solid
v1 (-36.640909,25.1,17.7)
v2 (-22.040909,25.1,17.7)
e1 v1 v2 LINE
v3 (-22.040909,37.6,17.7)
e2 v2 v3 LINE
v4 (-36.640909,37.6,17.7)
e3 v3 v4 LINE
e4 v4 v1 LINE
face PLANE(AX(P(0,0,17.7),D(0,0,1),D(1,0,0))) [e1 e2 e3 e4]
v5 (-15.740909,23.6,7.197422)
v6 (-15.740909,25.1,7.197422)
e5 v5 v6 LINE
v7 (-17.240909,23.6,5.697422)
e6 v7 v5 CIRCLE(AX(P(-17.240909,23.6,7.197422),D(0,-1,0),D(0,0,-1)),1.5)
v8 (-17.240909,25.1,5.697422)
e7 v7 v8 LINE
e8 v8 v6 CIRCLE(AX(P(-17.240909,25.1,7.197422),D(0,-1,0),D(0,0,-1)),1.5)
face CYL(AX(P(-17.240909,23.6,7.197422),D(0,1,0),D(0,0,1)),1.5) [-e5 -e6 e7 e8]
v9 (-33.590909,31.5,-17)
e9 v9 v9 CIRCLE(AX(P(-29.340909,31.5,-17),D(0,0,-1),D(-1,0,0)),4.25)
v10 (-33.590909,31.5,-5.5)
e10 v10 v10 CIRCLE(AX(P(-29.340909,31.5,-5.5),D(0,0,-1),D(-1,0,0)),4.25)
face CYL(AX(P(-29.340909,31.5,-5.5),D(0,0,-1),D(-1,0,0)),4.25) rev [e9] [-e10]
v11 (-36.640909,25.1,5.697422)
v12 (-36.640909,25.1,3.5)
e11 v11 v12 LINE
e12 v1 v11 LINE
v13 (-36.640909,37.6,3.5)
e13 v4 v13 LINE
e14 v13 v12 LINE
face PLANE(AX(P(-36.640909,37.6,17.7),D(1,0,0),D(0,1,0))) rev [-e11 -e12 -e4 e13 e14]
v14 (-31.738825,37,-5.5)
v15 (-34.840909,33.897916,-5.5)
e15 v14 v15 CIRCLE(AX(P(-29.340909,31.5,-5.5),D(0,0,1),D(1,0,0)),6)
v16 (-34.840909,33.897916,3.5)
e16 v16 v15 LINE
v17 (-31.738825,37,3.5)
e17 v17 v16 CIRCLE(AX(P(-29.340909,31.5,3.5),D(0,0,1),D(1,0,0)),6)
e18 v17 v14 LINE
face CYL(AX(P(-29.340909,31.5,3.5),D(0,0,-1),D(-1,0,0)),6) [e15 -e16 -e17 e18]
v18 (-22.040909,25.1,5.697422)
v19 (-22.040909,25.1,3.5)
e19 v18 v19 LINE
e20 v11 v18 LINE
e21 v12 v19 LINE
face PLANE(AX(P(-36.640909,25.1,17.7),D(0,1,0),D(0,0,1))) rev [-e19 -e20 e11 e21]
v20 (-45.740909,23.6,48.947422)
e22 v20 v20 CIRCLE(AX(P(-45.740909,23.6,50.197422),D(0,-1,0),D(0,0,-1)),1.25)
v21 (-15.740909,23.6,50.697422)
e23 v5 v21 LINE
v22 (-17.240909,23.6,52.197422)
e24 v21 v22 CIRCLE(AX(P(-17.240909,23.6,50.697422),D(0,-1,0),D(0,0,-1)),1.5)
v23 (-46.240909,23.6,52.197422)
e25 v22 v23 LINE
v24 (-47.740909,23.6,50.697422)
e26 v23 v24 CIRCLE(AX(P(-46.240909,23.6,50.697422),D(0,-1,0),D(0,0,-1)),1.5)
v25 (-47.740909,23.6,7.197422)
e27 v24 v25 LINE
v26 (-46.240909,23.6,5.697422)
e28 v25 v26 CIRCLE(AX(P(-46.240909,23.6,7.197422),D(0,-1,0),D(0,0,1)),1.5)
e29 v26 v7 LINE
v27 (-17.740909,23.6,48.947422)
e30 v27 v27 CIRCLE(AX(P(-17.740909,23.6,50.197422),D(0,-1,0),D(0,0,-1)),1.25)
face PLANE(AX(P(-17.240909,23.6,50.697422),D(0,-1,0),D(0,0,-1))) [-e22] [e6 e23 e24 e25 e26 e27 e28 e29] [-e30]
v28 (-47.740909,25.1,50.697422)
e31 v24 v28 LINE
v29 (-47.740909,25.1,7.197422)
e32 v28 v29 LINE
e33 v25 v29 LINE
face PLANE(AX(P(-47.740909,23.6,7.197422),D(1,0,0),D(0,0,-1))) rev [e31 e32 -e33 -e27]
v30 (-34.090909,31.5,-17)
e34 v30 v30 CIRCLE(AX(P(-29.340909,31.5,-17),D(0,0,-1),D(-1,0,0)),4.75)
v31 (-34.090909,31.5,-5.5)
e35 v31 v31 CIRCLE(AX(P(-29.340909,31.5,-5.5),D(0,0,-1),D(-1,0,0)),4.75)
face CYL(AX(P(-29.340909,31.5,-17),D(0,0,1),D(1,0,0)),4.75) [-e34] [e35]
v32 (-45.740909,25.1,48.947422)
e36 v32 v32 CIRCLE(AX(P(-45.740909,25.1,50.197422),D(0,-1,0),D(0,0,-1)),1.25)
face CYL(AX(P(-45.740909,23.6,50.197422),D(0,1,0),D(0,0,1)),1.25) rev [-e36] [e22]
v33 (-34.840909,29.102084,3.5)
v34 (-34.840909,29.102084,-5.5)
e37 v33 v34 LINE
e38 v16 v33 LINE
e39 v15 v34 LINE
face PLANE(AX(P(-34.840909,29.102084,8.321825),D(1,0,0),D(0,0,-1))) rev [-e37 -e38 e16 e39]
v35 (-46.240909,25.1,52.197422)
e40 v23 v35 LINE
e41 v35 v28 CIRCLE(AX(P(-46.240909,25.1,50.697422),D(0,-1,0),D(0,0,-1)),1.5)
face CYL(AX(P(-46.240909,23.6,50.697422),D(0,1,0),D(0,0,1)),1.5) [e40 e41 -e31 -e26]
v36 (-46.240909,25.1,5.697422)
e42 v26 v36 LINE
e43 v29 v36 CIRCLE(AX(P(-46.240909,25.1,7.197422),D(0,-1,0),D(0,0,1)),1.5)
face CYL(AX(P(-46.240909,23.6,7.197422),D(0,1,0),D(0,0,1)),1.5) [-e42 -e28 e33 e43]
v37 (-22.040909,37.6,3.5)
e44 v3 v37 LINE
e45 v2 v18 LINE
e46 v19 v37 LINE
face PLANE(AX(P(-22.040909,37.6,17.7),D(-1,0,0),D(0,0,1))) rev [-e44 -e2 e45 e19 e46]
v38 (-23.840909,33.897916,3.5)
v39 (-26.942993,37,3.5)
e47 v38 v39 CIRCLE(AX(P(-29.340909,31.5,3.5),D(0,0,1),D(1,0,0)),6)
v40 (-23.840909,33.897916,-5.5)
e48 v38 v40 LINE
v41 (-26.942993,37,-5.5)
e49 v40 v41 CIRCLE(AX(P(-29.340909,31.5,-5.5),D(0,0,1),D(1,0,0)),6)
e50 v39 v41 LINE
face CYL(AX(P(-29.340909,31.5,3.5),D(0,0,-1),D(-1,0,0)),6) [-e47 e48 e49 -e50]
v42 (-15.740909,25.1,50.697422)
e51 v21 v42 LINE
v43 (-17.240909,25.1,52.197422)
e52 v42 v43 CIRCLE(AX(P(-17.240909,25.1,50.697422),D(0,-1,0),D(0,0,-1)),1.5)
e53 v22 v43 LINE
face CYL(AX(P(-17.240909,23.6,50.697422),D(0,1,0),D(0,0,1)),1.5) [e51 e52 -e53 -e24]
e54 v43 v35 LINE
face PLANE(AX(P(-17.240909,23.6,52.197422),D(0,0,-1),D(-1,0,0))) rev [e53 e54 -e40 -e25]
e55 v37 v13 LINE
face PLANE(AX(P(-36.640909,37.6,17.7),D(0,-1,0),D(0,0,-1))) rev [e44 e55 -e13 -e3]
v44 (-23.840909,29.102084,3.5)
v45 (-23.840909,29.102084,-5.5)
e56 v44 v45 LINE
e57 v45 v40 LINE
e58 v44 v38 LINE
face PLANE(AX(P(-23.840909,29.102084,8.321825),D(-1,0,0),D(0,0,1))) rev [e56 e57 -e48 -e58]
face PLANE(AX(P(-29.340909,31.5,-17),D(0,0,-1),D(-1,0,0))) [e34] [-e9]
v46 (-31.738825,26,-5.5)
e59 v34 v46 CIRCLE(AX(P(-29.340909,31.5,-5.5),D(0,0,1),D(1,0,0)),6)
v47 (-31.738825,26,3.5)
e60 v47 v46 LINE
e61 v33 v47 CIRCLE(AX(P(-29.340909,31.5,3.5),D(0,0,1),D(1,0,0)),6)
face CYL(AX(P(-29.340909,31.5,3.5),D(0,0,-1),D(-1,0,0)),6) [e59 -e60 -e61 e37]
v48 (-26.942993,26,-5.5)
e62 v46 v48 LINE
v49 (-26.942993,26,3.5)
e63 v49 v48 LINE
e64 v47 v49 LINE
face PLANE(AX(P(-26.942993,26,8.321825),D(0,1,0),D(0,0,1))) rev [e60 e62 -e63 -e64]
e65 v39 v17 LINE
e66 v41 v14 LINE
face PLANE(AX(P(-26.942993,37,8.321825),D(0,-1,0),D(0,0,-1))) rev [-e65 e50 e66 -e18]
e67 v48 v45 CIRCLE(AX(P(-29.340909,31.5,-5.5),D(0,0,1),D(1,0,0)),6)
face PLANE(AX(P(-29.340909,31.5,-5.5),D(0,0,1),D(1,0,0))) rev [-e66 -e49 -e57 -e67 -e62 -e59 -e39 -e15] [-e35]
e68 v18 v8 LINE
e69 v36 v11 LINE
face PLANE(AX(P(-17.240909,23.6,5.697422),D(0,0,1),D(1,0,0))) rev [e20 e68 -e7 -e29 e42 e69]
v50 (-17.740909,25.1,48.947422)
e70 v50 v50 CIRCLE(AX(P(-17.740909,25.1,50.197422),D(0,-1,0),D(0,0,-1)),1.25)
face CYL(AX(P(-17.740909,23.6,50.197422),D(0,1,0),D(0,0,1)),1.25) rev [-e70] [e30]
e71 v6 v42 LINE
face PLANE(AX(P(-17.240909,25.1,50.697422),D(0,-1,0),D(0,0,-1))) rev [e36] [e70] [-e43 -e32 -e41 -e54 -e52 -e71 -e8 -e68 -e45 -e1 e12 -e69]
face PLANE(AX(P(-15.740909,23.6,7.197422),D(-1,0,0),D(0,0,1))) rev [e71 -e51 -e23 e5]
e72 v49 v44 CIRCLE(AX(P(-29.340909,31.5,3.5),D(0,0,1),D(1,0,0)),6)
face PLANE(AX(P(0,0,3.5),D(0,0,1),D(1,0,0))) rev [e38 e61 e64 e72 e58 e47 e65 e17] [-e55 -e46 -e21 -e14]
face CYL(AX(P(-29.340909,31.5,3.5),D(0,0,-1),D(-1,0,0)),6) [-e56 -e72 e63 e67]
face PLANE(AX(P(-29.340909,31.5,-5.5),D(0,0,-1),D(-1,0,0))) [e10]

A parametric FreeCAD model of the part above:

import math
import FreeCAD as App
import Part
import Sketcher

V = App.Vector
Q = App.Units.Quantity

doc = App.newDocument("Part")
body = doc.addObject("PartDesign::Body", "Body")

# Sketch on XY plane
sketch1 = body.newObject("Sketcher::SketchObject", "Sketch")
sketch1.AttachmentSupport = (doc.getObject("XY_Plane"), [""])
sketch1.MapMode = "FlatFace"
sketch1.addGeometry(Part.Circle(V(-29, 32, 0), V(0, 0, 1), 6), False)
sketch1.addConstraint([
    Sketcher.Constraint("Diameter", 0, Q("12 mm")),
    Sketcher.Constraint("DistanceY", -1, 1, 0, 3, Q("31.5 mm")),
    Sketcher.Constraint("DistanceX", 0, 3, -1, 1, Q("29.340909 mm")),
])
pad1 = body.newObject("PartDesign::Pad", "Pad")
pad1.Profile = sketch1
pad1.Type = "TwoLengths"
pad1.Length = 3.5
pad1.Length2 = 5.5

# Sketch on XY plane
sketch2 = body.newObject("Sketcher::SketchObject", "Sketch001")
sketch2.AttachmentSupport = (doc.getObject("XY_Plane"), [""])
sketch2.MapMode = "FlatFace"
sketch2.AttachmentOffset = App.Placement(V(0, 0, -5.5), App.Rotation())
sketch2.addGeometry(Part.Circle(V(-29.3, 31.5, 0), V(0, 0, 1), 4.8), False)
sketch2.addConstraint([
    Sketcher.Constraint("Diameter", 0, Q("9.5 mm")),
    Sketcher.Constraint("DistanceY", -1, 1, 0, 3, Q("31.5 mm")),
    Sketcher.Constraint("DistanceX", 0, 3, -1, 1, Q("29.340909 mm")),
])
pad2 = body.newObject("PartDesign::Pad", "Pad001")
pad2.Profile = sketch2
pad2.Length = 11.5
pad2.Reversed = True

# Sketch on XY plane
sketch3 = body.newObject("Sketcher::SketchObject", "Sketch002")
sketch3.AttachmentSupport = (doc.getObject("XY_Plane"), [""])
sketch3.MapMode = "FlatFace"
sketch3.AttachmentOffset = App.Placement(V(0, 0, -17), App.Rotation())
sketch3.addGeometry(Part.Circle(V(-29.3, 31.5, 0), V(0, 0, 1), 4.2), False)
sketch3.addConstraint([
    Sketcher.Constraint("Diameter", 0, Q("8.5 mm")),
    Sketcher.Constraint("DistanceY", -1, 1, 0, 3, Q("31.5 mm")),
    Sketcher.Constraint("DistanceX", 0, 3, -1, 1, Q("29.340909 mm")),
])
pocket1 = body.newObject("PartDesign::Pocket", "Pocket")
pocket1.Profile = sketch3
pocket1.Length = 11.5
pocket1.Reversed = True

# Sketch on XY plane
sketch4 = body.newObject("Sketcher::SketchObject", "Sketch003")
sketch4.AttachmentSupport = (doc.getObject("XY_Plane"), [""])
sketch4.MapMode = "FlatFace"
sketch4.AttachmentOffset = App.Placement(V(0, 0, 3.5), App.Rotation())
sketch4.addGeometry([
    Part.LineSegment(V(-37, 38, 0), V(-37, 25, 0)),
    Part.LineSegment(V(-37, 25, 0), V(-22, 25, 0)),
    Part.LineSegment(V(-22, 25, 0), V(-22, 38, 0)),
    Part.LineSegment(V(-22, 38, 0), V(-37, 38, 0)),
], False)
sketch4.addConstraint([
    Sketcher.Constraint("Coincident", 0, 2, 1, 1),
    Sketcher.Constraint("Coincident", 1, 2, 2, 1),
    Sketcher.Constraint("Coincident", 2, 2, 3, 1),
    Sketcher.Constraint("Coincident", 3, 2, 0, 1),
    Sketcher.Constraint("Vertical", 0),
    Sketcher.Constraint("Horizontal", 1),
    Sketcher.Constraint("Vertical", 2),
    Sketcher.Constraint("Horizontal", 3),
    Sketcher.Constraint("DistanceX", 1, 1, 1, 2, Q("14.6 mm")),
    Sketcher.Constraint("DistanceY", 0, 2, 0, 1, Q("12.5 mm")),
    Sketcher.Constraint("DistanceY", -1, 1, 0, 2, Q("25.1 mm")),
    Sketcher.Constraint("DistanceX", 0, 2, -1, 1, Q("36.640909 mm")),
])
pad3 = body.newObject("PartDesign::Pad", "Pad002")
pad3.Profile = sketch4
pad3.Length = 14.2

# Sketch on XZ plane
sketch5 = body.newObject("Sketcher::SketchObject", "Sketch004")
sketch5.AttachmentSupport = (doc.getObject("XZ_Plane"), [""])
sketch5.MapMode = "FlatFace"
sketch5.AttachmentOffset = App.Placement(V(0, 0, -25.1), App.Rotation())
sketch5.addGeometry([
    Part.LineSegment(V(-46.2, 5.7, 0), V(-17.2, 5.7, 0)),  # 0
    Part.ArcOfCircle(Part.Circle(V(-17.2, 7.2, 0), V(0, 0, 1), 1.5), math.radians(-90), math.radians(0)),  # 1
    Part.LineSegment(V(-15.7, 7.2, 0), V(-15.7, 50.7, 0)),  # 2
    Part.ArcOfCircle(Part.Circle(V(-17.2, 50.7, 0), V(0, 0, 1), 1.5), math.radians(0), math.radians(90)),  # 3
    Part.LineSegment(V(-17.2, 52.2, 0), V(-46.2, 52.2, 0)),  # 4
    Part.ArcOfCircle(Part.Circle(V(-46.2, 50.7, 0), V(0, 0, 1), 1.5), math.radians(90), math.radians(180)),  # 5
    Part.LineSegment(V(-47.7, 50.7, 0), V(-47.7, 7.2, 0)),  # 6
    Part.ArcOfCircle(Part.Circle(V(-46.2, 7.2, 0), V(0, 0, 1), 1.5), math.radians(180), math.radians(270)),  # 7
    Part.Circle(V(-17.7, 50.2, 0), V(0, 0, 1), 1.2),  # 8
    Part.Circle(V(-45.7, 50.2, 0), V(0, 0, 1), 1.2),  # 9
], False)
sketch5.addConstraint([
    Sketcher.Constraint("Tangent", 0, 2, 1, 1),
    Sketcher.Constraint("Tangent", 1, 2, 2, 1),
    Sketcher.Constraint("Tangent", 2, 2, 3, 1),
    Sketcher.Constraint("Tangent", 3, 2, 4, 1),
    Sketcher.Constraint("Tangent", 4, 2, 5, 1),
    Sketcher.Constraint("Tangent", 5, 2, 6, 1),
    Sketcher.Constraint("Tangent", 6, 2, 7, 1),
    Sketcher.Constraint("Tangent", 7, 2, 0, 1),
    Sketcher.Constraint("Horizontal", 0),
    Sketcher.Constraint("Vertical", 2),
    Sketcher.Constraint("Horizontal", 4),
    Sketcher.Constraint("Vertical", 6),
    Sketcher.Constraint("Equal", 1, 3),
    Sketcher.Constraint("Equal", 3, 5),
    Sketcher.Constraint("Equal", 5, 7),
    Sketcher.Constraint("Equal", 8, 9),
    Sketcher.Constraint("Horizontal", 8, 3, 9, 3),
    Sketcher.Constraint("Diameter", 8, Q("2.5 mm")),
    Sketcher.Constraint("Radius", 1, Q("1.5 mm")),
    Sketcher.Constraint("DistanceX", 0, 1, 0, 2, Q("29 mm")),
    Sketcher.Constraint("DistanceY", 2, 1, 2, 2, Q("43.5 mm")),
    Sketcher.Constraint("DistanceY", 1, 3, 8, 3, Q("43 mm")),
    Sketcher.Constraint("DistanceX", 9, 3, 8, 3, Q("28 mm")),
    Sketcher.Constraint("DistanceX", 8, 3, 1, 2, Q("2 mm")),
    Sketcher.Constraint("DistanceX", 1, 3, -1, 1, Q("17.240909 mm")),
    Sketcher.Constraint("DistanceY", -1, 1, 1, 3, Q("7.197422 mm")),
])
pad4 = body.newObject("PartDesign::Pad", "Pad003")
pad4.Profile = sketch5
pad4.Length = 1.5

# Sketch on XY plane
sketch6 = body.newObject("Sketcher::SketchObject", "Sketch005")
sketch6.AttachmentSupport = (doc.getObject("XY_Plane"), [""])
sketch6.MapMode = "FlatFace"
sketch6.AttachmentOffset = App.Placement(V(0, 0, -5.5), App.Rotation())
sketch6.addGeometry([
    Part.LineSegment(V(-31.7, 26, 0), V(-26.9, 26, 0)),  # 0
    Part.ArcOfCircle(Part.Circle(V(-29.3, 31.5, 0), V(0, 0, 1), 6), math.radians(-114), math.radians(-66)),  # 1
    Part.LineSegment(V(-23.8, 29.1, 0), V(-23.8, 33.9, 0)),  # 2
    Part.ArcOfCircle(Part.Circle(V(-29.3, 31.5, 0), V(0, 0, 1), 6), math.radians(-24), math.radians(24)),  # 3
    Part.LineSegment(V(-26.9, 37, 0), V(-31.7, 37, 0)),  # 4
    Part.ArcOfCircle(Part.Circle(V(-29.3, 31.5, 0), V(0, 0, 1), 6), math.radians(66), math.radians(114)),  # 5
    Part.LineSegment(V(-34.8, 33.9, 0), V(-34.8, 29.1, 0)),  # 6
    Part.ArcOfCircle(Part.Circle(V(-29.3, 31.5, 0), V(0, 0, 1), 6), math.radians(156), math.radians(204)),  # 7
], False)
sketch6.addConstraint([
    Sketcher.Constraint("Coincident", 0, 1, 1, 1),
    Sketcher.Constraint("Coincident", 1, 2, 0, 2),
    Sketcher.Constraint("Coincident", 2, 1, 3, 1),
    Sketcher.Constraint("Coincident", 3, 2, 2, 2),
    Sketcher.Constraint("Coincident", 4, 1, 5, 1),
    Sketcher.Constraint("Coincident", 5, 2, 4, 2),
    Sketcher.Constraint("Coincident", 6, 1, 7, 1),
    Sketcher.Constraint("Coincident", 7, 2, 6, 2),
    Sketcher.Constraint("Horizontal", 0),
    Sketcher.Constraint("Vertical", 2),
    Sketcher.Constraint("Horizontal", 4),
    Sketcher.Constraint("Vertical", 6),
    Sketcher.Constraint("Coincident", 3, 3, 1, 3),
    Sketcher.Constraint("Coincident", 5, 3, 1, 3),
    Sketcher.Constraint("Coincident", 7, 3, 1, 3),
    Sketcher.Constraint("Equal", 1, 3),
    Sketcher.Constraint("Equal", 3, 5),
    Sketcher.Constraint("Equal", 5, 7),
    Sketcher.Constraint("Horizontal", 3, 2, 6, 1),
    Sketcher.Constraint("Vertical", 1, 2, 4, 1),
    Sketcher.Constraint("Equal", 4, 2),
    Sketcher.Constraint("Radius", 1, Q("6 mm")),
    Sketcher.Constraint("DistanceY", -1, 1, 0, 1, Q("26 mm")),
    Sketcher.Constraint("DistanceY", -1, 1, 4, 1, Q("37 mm")),
    Sketcher.Constraint("DistanceX", 1, 3, -1, 1, Q("29.340909 mm")),
])
pocket2 = body.newObject("PartDesign::Pocket", "Pocket001")
pocket2.Profile = sketch6
pocket2.Length = 9
pocket2.Reversed = True

doc.recompute()
